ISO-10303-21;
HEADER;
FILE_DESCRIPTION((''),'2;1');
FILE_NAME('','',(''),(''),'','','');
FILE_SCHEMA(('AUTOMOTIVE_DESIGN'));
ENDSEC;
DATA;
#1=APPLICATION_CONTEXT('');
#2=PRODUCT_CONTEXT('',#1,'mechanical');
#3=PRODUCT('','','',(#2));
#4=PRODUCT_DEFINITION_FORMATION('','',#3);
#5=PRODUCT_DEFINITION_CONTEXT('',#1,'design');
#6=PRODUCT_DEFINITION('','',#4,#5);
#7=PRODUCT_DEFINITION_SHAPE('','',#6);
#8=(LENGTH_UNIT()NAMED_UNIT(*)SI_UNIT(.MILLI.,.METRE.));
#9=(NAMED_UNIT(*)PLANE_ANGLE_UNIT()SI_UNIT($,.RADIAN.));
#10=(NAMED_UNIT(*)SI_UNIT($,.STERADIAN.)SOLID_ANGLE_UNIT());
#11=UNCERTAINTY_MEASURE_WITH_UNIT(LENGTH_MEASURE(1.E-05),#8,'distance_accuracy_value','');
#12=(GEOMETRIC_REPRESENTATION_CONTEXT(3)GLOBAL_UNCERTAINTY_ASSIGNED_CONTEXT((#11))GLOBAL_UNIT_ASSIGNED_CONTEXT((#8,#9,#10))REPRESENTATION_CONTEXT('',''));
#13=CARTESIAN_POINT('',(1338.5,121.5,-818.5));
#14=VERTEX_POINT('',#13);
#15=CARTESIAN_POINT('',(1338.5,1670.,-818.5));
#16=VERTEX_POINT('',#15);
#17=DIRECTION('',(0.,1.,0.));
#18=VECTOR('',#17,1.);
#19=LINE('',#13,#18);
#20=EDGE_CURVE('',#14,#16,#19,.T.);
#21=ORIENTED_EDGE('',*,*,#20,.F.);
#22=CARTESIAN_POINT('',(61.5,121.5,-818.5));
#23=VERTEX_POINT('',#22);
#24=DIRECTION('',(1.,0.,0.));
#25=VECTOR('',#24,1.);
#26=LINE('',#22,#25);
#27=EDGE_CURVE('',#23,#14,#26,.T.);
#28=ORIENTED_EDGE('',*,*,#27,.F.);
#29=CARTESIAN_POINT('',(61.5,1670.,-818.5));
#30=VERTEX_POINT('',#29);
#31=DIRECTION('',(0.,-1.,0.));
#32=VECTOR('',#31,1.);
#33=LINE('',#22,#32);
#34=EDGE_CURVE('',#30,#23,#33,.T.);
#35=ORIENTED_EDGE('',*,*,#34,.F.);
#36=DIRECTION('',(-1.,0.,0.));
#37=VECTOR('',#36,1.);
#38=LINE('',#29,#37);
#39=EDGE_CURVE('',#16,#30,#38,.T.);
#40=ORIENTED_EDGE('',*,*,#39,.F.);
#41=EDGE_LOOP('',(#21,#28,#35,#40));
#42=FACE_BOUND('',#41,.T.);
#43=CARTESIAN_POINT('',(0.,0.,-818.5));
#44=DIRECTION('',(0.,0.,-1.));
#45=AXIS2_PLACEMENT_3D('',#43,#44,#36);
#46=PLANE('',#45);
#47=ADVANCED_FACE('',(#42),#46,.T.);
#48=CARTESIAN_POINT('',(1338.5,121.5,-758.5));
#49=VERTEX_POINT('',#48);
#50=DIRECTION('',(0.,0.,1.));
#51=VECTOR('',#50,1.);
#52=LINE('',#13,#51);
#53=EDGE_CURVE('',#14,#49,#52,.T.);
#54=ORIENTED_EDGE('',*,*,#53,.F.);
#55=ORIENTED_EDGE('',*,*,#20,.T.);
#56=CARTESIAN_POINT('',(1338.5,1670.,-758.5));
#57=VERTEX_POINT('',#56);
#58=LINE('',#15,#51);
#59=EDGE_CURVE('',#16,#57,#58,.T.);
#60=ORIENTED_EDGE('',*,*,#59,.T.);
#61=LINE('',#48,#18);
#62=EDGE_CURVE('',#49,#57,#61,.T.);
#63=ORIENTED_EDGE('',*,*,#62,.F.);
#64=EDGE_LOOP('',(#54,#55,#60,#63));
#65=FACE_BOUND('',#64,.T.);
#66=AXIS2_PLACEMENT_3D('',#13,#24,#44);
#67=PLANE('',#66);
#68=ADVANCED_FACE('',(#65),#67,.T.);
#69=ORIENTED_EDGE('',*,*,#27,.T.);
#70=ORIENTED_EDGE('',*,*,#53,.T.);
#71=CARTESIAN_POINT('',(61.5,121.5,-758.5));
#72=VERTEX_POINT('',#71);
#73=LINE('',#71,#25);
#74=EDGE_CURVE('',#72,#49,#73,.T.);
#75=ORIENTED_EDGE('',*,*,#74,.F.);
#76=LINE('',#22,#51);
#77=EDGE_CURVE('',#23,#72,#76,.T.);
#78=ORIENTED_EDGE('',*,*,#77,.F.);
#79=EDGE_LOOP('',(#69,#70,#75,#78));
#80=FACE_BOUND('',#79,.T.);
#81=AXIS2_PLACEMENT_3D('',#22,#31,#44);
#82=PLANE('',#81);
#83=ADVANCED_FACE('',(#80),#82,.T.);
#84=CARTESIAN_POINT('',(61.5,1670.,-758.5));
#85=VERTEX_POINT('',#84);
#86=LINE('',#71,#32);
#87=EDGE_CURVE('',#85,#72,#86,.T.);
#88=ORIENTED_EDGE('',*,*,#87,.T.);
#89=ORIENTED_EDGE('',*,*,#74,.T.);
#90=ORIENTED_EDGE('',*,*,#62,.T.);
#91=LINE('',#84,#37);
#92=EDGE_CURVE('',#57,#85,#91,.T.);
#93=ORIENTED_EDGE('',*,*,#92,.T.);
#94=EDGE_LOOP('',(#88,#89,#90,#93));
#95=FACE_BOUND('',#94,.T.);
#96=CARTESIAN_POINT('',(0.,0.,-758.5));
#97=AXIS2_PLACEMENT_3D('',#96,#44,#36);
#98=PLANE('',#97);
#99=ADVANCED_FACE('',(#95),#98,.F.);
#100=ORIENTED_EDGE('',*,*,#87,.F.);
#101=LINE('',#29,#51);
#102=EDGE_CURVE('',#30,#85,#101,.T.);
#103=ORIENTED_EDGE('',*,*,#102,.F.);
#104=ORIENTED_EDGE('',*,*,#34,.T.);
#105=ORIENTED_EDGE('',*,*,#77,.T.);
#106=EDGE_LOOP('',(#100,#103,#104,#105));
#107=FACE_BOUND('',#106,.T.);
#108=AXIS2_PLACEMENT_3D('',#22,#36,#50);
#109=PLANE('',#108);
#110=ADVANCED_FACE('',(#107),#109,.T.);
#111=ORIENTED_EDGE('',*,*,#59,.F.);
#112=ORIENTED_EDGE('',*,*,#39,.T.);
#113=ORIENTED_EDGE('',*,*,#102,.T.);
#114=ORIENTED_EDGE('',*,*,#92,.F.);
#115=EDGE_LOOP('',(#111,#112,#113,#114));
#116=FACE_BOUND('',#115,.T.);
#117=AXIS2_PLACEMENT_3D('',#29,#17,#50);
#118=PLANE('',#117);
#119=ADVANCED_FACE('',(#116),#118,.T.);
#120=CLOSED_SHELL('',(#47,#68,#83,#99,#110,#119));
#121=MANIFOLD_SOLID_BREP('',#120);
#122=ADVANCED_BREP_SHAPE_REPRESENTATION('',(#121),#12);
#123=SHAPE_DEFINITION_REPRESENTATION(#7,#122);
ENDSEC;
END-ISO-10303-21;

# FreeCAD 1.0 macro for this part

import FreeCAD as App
import Part
import Sketcher


def add_polygon(sketch, points):
    """Adds a closed chain of lines whose ends are joined by coincident constraints."""
    first, n = sketch.GeometryCount, len(points)
    for a, b in zip(points, points[1:] + points[:1]):
        sketch.addGeometry(Part.LineSegment(App.Vector(*a, 0), App.Vector(*b, 0)), False)
    for i in range(n):
        sketch.addConstraint(Sketcher.Constraint("Coincident", first + i, 2, first + (i + 1) % n, 1))

doc = App.newDocument("Part")
body = doc.addObject("PartDesign::Body", "Body")

# Sketch on XY plane
sketch1 = body.newObject("Sketcher::SketchObject", "Sketch")
sketch1.AttachmentSupport = (doc.getObject("XY_Plane"), [""])
sketch1.MapMode = "FlatFace"
sketch1.AttachmentOffset = App.Placement(App.Vector(0, 0, -758.5), App.Rotation())
add_polygon(sketch1, [(62, 1670), (62, 122), (1338, 122), (1338, 1670)])  # lines 0-3
sketch1.addConstraint([
    Sketcher.Constraint("Vertical", 0),
    Sketcher.Constraint("Horizontal", 1),
    Sketcher.Constraint("Vertical", 2),
    Sketcher.Constraint("Horizontal", 3),
    Sketcher.Constraint("DistanceX", 1, 1, 1, 2, 1277.0),
    Sketcher.Constraint("DistanceY", 0, 2, 0, 1, 1548.5),
    Sketcher.Constraint("DistanceY", -1, 1, 2, 2, 1670.0),
    Sketcher.Constraint("DistanceX", -1, 1, 0, 2, 61.5),
])
pad1 = body.newObject("PartDesign::Pad", "Pad")
pad1.Profile = sketch1
pad1.Length = 60
pad1.Reversed = True

doc.recompute()
